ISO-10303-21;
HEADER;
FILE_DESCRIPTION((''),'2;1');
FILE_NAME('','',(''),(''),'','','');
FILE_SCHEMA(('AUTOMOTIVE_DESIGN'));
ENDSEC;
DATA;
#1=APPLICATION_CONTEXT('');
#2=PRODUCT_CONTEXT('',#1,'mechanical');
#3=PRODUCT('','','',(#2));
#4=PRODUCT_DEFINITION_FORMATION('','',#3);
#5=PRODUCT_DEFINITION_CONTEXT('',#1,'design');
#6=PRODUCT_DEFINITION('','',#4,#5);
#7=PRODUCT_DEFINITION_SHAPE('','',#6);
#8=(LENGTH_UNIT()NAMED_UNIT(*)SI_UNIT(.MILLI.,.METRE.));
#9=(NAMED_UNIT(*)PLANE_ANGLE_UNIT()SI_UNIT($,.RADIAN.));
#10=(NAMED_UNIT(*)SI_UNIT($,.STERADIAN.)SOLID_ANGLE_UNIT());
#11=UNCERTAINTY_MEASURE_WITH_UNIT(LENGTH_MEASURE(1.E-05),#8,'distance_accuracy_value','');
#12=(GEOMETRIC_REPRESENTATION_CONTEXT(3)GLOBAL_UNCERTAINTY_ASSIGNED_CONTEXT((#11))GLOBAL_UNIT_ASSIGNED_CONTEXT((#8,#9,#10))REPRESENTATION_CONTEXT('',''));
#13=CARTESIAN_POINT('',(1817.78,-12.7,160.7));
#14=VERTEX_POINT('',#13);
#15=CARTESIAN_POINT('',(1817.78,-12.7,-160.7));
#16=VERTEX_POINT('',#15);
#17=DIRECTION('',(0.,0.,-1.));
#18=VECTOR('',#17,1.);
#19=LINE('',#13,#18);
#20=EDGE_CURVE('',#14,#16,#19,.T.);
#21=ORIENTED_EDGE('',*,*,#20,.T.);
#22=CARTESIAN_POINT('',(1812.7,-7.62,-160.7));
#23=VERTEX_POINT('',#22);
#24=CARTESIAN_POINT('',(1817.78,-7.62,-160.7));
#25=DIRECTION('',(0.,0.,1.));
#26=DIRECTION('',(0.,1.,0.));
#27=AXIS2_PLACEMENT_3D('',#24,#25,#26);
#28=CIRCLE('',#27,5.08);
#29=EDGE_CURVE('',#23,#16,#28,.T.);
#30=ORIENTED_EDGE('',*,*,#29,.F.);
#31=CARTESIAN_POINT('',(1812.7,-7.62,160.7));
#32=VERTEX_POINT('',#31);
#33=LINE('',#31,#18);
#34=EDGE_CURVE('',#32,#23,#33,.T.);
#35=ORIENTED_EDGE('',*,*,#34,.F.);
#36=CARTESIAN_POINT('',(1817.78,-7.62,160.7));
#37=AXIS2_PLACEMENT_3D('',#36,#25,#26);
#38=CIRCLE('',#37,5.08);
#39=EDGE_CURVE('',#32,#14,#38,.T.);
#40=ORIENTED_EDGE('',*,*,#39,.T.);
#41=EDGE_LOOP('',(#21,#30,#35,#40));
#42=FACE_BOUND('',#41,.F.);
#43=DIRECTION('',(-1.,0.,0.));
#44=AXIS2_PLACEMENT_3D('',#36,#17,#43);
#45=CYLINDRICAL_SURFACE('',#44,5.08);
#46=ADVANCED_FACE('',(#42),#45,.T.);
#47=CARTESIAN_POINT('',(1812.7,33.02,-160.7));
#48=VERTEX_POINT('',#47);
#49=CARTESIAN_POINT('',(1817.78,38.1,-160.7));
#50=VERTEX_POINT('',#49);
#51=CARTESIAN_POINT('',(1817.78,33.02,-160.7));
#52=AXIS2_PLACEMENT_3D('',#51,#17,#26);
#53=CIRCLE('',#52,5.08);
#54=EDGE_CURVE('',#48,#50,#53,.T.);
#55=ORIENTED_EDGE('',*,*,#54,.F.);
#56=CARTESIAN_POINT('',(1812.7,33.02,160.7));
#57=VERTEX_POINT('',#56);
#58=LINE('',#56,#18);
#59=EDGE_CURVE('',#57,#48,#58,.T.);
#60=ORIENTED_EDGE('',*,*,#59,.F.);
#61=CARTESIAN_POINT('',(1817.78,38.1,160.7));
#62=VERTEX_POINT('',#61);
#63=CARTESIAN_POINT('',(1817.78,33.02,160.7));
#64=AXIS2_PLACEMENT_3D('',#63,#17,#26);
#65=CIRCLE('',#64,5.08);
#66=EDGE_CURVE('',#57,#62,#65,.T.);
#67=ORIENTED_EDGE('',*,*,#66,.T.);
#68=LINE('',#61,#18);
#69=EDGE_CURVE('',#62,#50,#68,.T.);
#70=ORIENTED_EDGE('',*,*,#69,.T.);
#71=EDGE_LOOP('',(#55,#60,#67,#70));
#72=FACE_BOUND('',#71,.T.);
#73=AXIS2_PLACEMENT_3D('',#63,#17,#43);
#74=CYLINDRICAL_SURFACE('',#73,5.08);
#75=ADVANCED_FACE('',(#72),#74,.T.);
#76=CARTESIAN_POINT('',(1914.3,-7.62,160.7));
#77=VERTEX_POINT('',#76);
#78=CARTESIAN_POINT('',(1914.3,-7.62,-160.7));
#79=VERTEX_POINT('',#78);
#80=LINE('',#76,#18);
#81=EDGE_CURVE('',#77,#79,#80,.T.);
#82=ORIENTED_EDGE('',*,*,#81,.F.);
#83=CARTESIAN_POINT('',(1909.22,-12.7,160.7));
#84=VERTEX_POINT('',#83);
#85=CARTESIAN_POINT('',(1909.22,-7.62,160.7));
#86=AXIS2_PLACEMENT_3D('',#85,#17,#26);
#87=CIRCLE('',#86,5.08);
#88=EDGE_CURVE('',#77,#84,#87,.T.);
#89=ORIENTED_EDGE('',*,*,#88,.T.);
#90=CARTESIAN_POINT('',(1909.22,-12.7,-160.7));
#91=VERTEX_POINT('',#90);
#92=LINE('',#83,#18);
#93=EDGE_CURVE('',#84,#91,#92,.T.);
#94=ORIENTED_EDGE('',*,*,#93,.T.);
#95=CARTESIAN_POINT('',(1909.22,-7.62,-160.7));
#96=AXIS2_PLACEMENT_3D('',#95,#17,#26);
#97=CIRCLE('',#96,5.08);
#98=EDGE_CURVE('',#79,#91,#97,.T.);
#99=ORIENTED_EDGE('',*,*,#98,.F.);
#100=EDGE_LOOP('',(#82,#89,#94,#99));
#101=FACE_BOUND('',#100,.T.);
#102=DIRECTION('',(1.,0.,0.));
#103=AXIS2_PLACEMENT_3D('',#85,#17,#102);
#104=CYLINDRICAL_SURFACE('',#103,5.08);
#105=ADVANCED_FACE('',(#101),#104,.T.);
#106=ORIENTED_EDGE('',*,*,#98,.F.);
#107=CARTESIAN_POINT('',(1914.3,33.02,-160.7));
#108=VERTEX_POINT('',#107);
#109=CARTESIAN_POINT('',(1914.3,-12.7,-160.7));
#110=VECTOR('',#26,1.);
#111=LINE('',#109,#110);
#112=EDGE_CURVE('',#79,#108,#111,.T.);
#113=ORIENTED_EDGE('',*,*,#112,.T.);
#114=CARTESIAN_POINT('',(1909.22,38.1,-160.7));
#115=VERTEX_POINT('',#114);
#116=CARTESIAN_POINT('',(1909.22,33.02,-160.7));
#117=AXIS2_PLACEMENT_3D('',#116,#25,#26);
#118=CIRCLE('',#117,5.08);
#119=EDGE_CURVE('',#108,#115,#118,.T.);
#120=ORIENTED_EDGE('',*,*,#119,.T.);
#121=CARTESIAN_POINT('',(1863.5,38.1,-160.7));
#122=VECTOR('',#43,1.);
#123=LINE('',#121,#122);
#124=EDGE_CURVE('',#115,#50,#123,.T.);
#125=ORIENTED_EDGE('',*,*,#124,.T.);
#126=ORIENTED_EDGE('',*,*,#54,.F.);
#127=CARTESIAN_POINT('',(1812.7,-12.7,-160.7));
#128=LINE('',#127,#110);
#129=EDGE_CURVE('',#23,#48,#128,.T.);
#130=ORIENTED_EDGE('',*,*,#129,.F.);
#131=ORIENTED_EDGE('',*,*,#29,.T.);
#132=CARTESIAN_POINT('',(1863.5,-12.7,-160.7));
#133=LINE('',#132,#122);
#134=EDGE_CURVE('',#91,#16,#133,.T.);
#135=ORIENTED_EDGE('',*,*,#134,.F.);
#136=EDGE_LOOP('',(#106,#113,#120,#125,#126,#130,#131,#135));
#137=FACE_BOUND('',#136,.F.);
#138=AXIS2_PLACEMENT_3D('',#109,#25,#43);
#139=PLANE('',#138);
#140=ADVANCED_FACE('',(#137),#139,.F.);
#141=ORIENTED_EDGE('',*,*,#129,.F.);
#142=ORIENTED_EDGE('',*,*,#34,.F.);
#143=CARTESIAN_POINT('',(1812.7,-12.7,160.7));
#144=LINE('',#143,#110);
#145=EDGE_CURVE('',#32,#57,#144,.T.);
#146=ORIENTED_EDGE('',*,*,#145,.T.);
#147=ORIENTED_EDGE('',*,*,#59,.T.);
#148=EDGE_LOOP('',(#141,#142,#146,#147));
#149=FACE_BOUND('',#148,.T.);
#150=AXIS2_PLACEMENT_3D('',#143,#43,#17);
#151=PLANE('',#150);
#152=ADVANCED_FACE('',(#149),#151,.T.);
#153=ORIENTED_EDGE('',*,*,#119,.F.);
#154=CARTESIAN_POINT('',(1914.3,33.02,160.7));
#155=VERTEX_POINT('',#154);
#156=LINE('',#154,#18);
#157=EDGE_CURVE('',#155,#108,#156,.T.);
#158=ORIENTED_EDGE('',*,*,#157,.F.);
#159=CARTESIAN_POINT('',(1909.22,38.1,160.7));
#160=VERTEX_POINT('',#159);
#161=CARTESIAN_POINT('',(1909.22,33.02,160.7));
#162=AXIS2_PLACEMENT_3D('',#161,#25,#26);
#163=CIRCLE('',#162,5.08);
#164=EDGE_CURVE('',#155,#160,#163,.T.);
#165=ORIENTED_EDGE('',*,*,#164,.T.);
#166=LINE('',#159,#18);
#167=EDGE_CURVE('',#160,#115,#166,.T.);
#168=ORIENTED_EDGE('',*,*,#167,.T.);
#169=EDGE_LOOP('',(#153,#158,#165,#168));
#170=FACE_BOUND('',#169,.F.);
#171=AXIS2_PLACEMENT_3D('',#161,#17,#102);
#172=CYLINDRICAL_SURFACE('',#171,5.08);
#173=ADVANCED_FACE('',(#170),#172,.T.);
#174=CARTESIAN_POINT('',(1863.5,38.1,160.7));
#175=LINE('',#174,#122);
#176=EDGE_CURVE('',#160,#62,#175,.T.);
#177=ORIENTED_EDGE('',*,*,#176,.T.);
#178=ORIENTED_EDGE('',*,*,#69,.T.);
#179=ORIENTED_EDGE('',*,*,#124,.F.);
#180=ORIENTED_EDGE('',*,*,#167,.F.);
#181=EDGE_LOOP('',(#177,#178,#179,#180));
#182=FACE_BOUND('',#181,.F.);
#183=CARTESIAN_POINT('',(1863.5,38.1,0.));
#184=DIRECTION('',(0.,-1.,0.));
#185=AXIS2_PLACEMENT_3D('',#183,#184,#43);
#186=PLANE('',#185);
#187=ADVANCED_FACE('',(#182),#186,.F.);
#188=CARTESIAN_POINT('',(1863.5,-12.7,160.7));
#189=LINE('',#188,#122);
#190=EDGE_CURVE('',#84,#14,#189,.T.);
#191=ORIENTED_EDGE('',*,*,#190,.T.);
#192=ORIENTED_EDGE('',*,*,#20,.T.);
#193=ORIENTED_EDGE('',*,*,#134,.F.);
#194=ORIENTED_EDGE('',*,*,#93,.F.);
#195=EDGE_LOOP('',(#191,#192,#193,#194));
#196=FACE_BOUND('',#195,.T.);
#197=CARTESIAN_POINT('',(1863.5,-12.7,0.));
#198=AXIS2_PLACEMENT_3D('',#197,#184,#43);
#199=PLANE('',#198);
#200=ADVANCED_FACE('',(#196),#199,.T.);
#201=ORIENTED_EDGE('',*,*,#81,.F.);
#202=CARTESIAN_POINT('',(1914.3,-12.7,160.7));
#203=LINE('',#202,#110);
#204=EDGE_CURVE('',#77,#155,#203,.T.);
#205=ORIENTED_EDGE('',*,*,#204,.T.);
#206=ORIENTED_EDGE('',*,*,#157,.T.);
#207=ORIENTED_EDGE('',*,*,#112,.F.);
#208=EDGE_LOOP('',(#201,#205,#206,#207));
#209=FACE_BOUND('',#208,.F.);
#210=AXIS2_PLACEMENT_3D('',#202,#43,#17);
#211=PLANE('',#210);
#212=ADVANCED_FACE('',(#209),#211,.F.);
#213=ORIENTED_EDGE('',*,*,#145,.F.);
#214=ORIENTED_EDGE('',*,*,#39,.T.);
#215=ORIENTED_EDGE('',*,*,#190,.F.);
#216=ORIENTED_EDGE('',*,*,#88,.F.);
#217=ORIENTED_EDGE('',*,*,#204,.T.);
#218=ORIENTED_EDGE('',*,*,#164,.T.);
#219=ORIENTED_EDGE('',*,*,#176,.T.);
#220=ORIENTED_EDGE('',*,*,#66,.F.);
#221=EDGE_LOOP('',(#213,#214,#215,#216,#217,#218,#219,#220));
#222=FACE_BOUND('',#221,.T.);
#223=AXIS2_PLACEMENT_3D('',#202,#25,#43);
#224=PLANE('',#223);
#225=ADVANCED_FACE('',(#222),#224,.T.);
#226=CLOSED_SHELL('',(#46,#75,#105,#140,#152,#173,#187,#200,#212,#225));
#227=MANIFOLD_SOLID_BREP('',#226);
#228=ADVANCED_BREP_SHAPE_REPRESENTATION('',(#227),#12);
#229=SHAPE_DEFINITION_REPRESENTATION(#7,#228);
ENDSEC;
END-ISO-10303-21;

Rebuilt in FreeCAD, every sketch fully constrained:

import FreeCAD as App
import Part
import Sketcher

V = App.Vector
Q = App.Units.Quantity


def edges_at(feature, points):
    """Names of the edges that pass closest to the given points."""
    edges = feature.Shape.Edges
    near = lambda p: min(range(len(edges)), key=lambda i: edges[i].distToShape(Part.Vertex(*p))[0])
    return sorted({f"Edge{near(p) + 1}" for p in points})


def add_polygon(sketch, points):
    """Adds a closed chain of lines whose ends are joined by coincident constraints."""
    first, n = sketch.GeometryCount, len(points)
    for a, b in zip(points, points[1:] + points[:1]):
        sketch.addGeometry(Part.LineSegment(App.Vector(*a, 0), App.Vector(*b, 0)), False)
    for i in range(n):
        sketch.addConstraint(Sketcher.Constraint("Coincident", first + i, 2, first + (i + 1) % n, 1))

doc = App.newDocument("Part")
body = doc.addObject("PartDesign::Body", "Body")

# Sketch on XZ plane
sketch1 = body.newObject("Sketcher::SketchObject", "Sketch")
sketch1.AttachmentSupport = (doc.getObject("XZ_Plane"), [""])
sketch1.MapMode = "FlatFace"
sketch1.AttachmentOffset = App.Placement(V(0, 0, 0.5 * 25.4), App.Rotation())
add_polygon(sketch1, [(1914, -161), (1914, 161), (1813, 161), (1813, -161)])  # lines 0-3
sketch1.addConstraint([
    Sketcher.Constraint("Vertical", 0),
    Sketcher.Constraint("Horizontal", 1),
    Sketcher.Constraint("Vertical", 2),
    Sketcher.Constraint("Horizontal", 3),
    Sketcher.Constraint("DistanceX", 1, 2, 1, 1, Q("4 in")),
    Sketcher.Constraint("DistanceY", 0, 1, 0, 2, 321.4),
    Sketcher.Constraint("DistanceX", -1, 1, 0, 2, 1914.3),
    Sketcher.Constraint("DistanceY", -1, 1, 0, 2, 160.7),
])
pad1 = body.newObject("PartDesign::Pad", "Pad")
pad1.Profile = sketch1
pad1.Length = Q("2 in")
pad1.Reversed = True
doc.recompute()

fillet = body.newObject("PartDesign::Fillet", "Fillet")
fillet.Base = (pad1, edges_at(pad1, [
    (1812.7, 38.1, 0),
    (1914.3, 38.1, 0),
    (1812.7, -12.7, 0),
    (1914.3, -12.7, 0),
]))
fillet.Radius = Q("0.2 in")

doc.recompute()
